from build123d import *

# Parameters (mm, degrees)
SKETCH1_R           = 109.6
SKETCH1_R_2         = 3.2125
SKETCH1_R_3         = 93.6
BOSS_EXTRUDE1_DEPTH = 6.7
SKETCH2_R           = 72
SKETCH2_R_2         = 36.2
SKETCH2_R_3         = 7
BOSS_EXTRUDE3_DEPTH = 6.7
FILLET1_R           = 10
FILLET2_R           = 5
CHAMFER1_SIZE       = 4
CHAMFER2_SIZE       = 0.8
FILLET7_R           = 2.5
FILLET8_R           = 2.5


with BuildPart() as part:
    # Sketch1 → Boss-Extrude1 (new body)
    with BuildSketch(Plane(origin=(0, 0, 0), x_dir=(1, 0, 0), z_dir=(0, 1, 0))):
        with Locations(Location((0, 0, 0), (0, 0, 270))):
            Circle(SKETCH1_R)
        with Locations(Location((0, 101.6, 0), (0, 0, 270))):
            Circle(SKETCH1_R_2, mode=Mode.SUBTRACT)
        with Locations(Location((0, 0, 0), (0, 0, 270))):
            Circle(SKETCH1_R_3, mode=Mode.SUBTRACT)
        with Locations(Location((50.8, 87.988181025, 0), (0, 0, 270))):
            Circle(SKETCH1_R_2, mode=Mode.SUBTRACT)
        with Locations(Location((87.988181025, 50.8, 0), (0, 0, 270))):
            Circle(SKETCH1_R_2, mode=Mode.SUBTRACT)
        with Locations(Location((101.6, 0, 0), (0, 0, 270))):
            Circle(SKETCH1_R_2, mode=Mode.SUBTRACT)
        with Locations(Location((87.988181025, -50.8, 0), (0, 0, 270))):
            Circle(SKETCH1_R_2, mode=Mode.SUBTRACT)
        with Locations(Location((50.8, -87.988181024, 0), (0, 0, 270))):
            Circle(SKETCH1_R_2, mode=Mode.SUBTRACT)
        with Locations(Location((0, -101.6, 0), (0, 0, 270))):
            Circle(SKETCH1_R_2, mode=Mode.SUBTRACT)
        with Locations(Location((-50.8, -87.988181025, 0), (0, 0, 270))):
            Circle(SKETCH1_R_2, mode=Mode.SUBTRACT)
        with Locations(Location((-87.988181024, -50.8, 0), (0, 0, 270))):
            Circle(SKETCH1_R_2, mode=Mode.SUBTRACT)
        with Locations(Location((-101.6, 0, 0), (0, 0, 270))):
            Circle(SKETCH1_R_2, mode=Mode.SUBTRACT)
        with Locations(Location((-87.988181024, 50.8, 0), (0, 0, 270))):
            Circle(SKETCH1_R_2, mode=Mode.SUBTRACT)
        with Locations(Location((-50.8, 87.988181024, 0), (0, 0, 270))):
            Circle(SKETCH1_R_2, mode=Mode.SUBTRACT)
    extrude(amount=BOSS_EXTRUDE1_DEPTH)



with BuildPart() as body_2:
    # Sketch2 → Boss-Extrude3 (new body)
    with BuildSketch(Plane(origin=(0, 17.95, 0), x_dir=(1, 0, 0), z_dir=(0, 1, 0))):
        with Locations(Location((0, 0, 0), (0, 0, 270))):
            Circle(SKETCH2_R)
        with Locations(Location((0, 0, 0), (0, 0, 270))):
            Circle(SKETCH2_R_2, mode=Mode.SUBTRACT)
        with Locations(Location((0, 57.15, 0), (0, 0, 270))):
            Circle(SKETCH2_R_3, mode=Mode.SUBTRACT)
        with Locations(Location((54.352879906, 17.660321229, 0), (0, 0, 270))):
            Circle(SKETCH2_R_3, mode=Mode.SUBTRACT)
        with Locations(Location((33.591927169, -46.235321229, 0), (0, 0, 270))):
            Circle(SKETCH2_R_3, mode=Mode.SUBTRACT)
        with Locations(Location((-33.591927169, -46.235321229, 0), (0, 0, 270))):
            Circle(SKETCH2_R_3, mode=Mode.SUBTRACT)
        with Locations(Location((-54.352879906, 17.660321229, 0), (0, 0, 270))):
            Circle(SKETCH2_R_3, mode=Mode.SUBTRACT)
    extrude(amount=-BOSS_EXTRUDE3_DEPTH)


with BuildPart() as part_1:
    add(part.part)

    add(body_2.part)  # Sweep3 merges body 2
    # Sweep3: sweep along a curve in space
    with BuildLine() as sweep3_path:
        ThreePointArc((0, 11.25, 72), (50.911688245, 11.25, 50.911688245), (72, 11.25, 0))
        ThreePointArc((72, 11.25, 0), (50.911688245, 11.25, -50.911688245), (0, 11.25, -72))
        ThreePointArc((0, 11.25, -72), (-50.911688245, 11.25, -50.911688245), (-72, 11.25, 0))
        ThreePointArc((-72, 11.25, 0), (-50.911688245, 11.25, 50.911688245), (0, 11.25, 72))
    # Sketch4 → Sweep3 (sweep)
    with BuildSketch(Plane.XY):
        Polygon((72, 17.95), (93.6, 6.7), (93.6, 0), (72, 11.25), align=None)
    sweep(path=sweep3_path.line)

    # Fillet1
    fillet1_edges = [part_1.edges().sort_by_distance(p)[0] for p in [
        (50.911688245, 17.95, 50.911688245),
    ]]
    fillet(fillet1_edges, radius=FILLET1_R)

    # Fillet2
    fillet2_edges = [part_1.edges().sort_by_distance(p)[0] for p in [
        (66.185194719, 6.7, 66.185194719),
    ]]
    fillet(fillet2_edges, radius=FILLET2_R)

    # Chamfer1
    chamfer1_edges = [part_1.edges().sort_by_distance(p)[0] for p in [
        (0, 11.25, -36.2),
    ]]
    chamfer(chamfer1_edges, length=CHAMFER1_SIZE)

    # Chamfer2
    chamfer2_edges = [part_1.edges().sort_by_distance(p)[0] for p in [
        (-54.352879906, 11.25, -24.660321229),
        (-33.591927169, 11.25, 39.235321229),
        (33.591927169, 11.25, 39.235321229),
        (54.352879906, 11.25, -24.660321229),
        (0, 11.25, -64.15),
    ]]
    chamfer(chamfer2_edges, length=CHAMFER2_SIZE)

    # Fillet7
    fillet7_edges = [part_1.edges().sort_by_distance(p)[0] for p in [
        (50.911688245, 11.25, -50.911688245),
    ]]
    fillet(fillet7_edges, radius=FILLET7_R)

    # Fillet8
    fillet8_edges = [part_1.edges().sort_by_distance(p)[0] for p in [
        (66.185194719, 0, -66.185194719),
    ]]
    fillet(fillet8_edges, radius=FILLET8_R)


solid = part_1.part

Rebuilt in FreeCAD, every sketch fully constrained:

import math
import FreeCAD as App
import Part
import Sketcher
Q = App.Units.Quantity


def edges_at(feature, points):
    """Names of the edges that pass closest to the given points."""
    edges = feature.Shape.Edges
    near = lambda p: min(range(len(edges)), key=lambda i: edges[i].distToShape(Part.Vertex(*p))[0])
    return sorted({f"Edge{near(p) + 1}" for p in points})

doc = App.newDocument("Part")
body = doc.addObject("PartDesign::Body", "Body")

sketch1 = body.newObject("Sketcher::SketchObject", "Sketch")
sketch1.AttachmentSupport = (doc.getObject("XZ_Plane"), [""])
sketch1.MapMode = "FlatFace"
sketch1.addGeometry([
    Part.Circle(App.Vector(0, 0, 0), App.Vector(0, 0, 1), 109.6),
    Part.Circle(App.Vector(-88, -50.8, 0), App.Vector(0, 0, 1), 3.2),
    Part.Circle(App.Vector(-50.8, -88, 0), App.Vector(0, 0, 1), 3.2),
    Part.Circle(App.Vector(0, -101.6, 0), App.Vector(0, 0, 1), 3.2),
    Part.Circle(App.Vector(0, 0, 0), App.Vector(0, 0, 1), 93.6),
    Part.Circle(App.Vector(-101.6, 0, 0), App.Vector(0, 0, 1), 3.2),
    Part.Circle(App.Vector(-88, 50.8, 0), App.Vector(0, 0, 1), 3.2),
    Part.Circle(App.Vector(-50.8, 88, 0), App.Vector(0, 0, 1), 3.2),
    Part.Circle(App.Vector(50.8, -88, 0), App.Vector(0, 0, 1), 3.2),
    Part.Circle(App.Vector(88, -50.8, 0), App.Vector(0, 0, 1), 3.2),
    Part.Circle(App.Vector(101.6, 0, 0), App.Vector(0, 0, 1), 3.2),
    Part.Circle(App.Vector(0, 101.6, 0), App.Vector(0, 0, 1), 3.2),
    Part.Circle(App.Vector(50.8, 88, 0), App.Vector(0, 0, 1), 3.2),
    Part.Circle(App.Vector(88, 50.8, 0), App.Vector(0, 0, 1), 3.2),
], False)
sketch1.addConstraint([
    Sketcher.Constraint("Coincident", 0, 3, -1, 1),
    Sketcher.Constraint("Coincident", 4, 3, -1, 1),
    Sketcher.Constraint("Equal", 1, 2),
    Sketcher.Constraint("Equal", 2, 3),
    Sketcher.Constraint("Equal", 3, 5),
    Sketcher.Constraint("Equal", 5, 6),
    Sketcher.Constraint("Equal", 6, 7),
    Sketcher.Constraint("Equal", 7, 8),
    Sketcher.Constraint("Equal", 8, 9),
    Sketcher.Constraint("Equal", 9, 10),
    Sketcher.Constraint("Equal", 10, 11),
    Sketcher.Constraint("Equal", 11, 12),
    Sketcher.Constraint("Equal", 12, 13),
    Sketcher.Constraint("Symmetric", 7, 3, 8, 3, -1, 1),
    Sketcher.Constraint("Symmetric", 6, 3, 9, 3, -1, 1),
    Sketcher.Constraint("Symmetric", 5, 3, 10, 3, -1, 1),
    Sketcher.Constraint("Symmetric", 3, 3, 11, 3, -1, 1),
    Sketcher.Constraint("Symmetric", 2, 3, 12, 3, -1, 1),
    Sketcher.Constraint("Symmetric", 1, 3, 13, 3, -1, 1),
    Sketcher.Constraint("Symmetric", 2, 3, 8, 3, -2),
    Sketcher.Constraint("Symmetric", 1, 3, 9, 3, -2),
    Sketcher.Constraint("PointOnObject", 3, 3, -2),
    Sketcher.Constraint("PointOnObject", 5, 3, -1),
    Sketcher.Constraint("Diameter", 0, Q("219.2 mm")),
    Sketcher.Constraint("Diameter", 4, Q("187.2 mm")),
    Sketcher.Constraint("Diameter", 1, Q("6.425 mm")),
    Sketcher.Constraint("DistanceY", 1, 3, -1, 1, Q("50.8 mm")),
    Sketcher.Constraint("DistanceX", 2, 3, -1, 1, Q("50.8 mm")),
    Sketcher.Constraint("DistanceY", 3, 3, -1, 1, Q("101.6 mm")),
    Sketcher.Constraint("DistanceX", 5, 3, -1, 1, Q("101.6 mm")),
    Sketcher.Constraint("DistanceX", 1, 3, -1, 1, Q("87.988181 mm")),
    Sketcher.Constraint("DistanceY", 2, 3, -1, 1, Q("87.988181 mm")),
])
pad1 = body.newObject("PartDesign::Pad", "Pad")
pad1.Profile = sketch1
pad1.Length = 6.7
pad1.Reversed = True
body2 = doc.addObject("PartDesign::Body", "Body001")

sketch2 = body2.newObject("Sketcher::SketchObject", "Sketch001")
sketch2.AttachmentSupport = (doc.getObject("XZ_Plane001"), [""])
sketch2.MapMode = "FlatFace"
sketch2.AttachmentOffset = App.Placement(App.Vector(0, 0, -17.95), App.Rotation())
sketch2.addGeometry([
    Part.Circle(App.Vector(0, 0, 0), App.Vector(0, 0, 1), 72),
    Part.Circle(App.Vector(-54, -18, 0), App.Vector(0, 0, 1), 7),
    Part.Circle(App.Vector(0, -57, 0), App.Vector(0, 0, 1), 7),
    Part.Circle(App.Vector(-34, 46, 0), App.Vector(0, 0, 1), 7),
    Part.Circle(App.Vector(54, -18, 0), App.Vector(0, 0, 1), 7),
    Part.Circle(App.Vector(0, 0, 0), App.Vector(0, 0, 1), 36),
    Part.Circle(App.Vector(34, 46, 0), App.Vector(0, 0, 1), 7),
], False)
sketch2.addConstraint([
    Sketcher.Constraint("Coincident", 0, 3, -1, 1),
    Sketcher.Constraint("Coincident", 5, 3, -1, 1),
    Sketcher.Constraint("Equal", 1, 2),
    Sketcher.Constraint("Equal", 2, 3),
    Sketcher.Constraint("Equal", 3, 4),
    Sketcher.Constraint("Equal", 4, 6),
    Sketcher.Constraint("Symmetric", 1, 3, 4, 3, -2),
    Sketcher.Constraint("Symmetric", 3, 3, 6, 3, -2),
    Sketcher.Constraint("PointOnObject", 2, 3, -2),
    Sketcher.Constraint("Diameter", 0, Q("144 mm")),
    Sketcher.Constraint("Diameter", 1, Q("14 mm")),
    Sketcher.Constraint("Diameter", 5, Q("72.4 mm")),
    Sketcher.Constraint("DistanceY", 2, 3, -1, 1, Q("57.15 mm")),
    Sketcher.Constraint("DistanceX", 1, 3, -1, 1, Q("54.35288 mm")),
    Sketcher.Constraint("DistanceY", 1, 3, -1, 1, Q("17.660321 mm")),
    Sketcher.Constraint("DistanceY", -1, 1, 3, 3, Q("46.235321 mm")),
    Sketcher.Constraint("DistanceX", 3, 3, -1, 1, Q("33.591927 mm")),
])
pad2 = body2.newObject("PartDesign::Pad", "Pad001")
pad2.Profile = sketch2
pad2.Length = 6.7
body.AllowCompound = True
doc.recompute()

boolean = body.newObject("PartDesign::Boolean", "Boolean")
boolean.Type = "Fuse"
boolean.addObjects([body2])

sketch3 = body.newObject("Sketcher::SketchObject", "Sketch002")
sketch3.AttachmentSupport = (doc.getObject("XY_Plane"), [""])
sketch3.MapMode = "FlatFace"
sketch3.addGeometry([
    Part.LineSegment(App.Vector(94, 7, 0), App.Vector(72, 18, 0)),
    Part.LineSegment(App.Vector(72, 18, 0), App.Vector(72, 11, 0)),
    Part.LineSegment(App.Vector(72, 11, 0), App.Vector(94, 0, 0)),
    Part.LineSegment(App.Vector(94, 0, 0), App.Vector(94, 7, 0)),
], False)
sketch3.addConstraint([
    Sketcher.Constraint("Coincident", 0, 2, 1, 1),
    Sketcher.Constraint("Coincident", 1, 2, 2, 1),
    Sketcher.Constraint("Coincident", 2, 2, 3, 1),
    Sketcher.Constraint("Coincident", 3, 2, 0, 1),
    Sketcher.Constraint("Vertical", 1),
    Sketcher.Constraint("Vertical", 3),
    Sketcher.Constraint("PointOnObject", 2, 2, -1),
    Sketcher.Constraint("Parallel", 0, 2),
    Sketcher.Constraint("DistanceY", 1, 2, 1, 1, Q("6.7 mm")),
    Sketcher.Constraint("DistanceX", -1, 1, 0, 2, Q("72 mm")),
    Sketcher.Constraint("DistanceX", -1, 1, 2, 2, Q("93.6 mm")),
    Sketcher.Constraint("DistanceY", -1, 1, 0, 2, Q("17.95 mm")),
])

sketch4 = body.newObject("Sketcher::SketchObject", "Sketch003")
sketch4.AttachmentSupport = (doc.getObject("XZ_Plane"), [""])
sketch4.MapMode = "FlatFace"
sketch4.AttachmentOffset = App.Placement(App.Vector(0, 0, -11.25), App.Rotation())
sketch4.addGeometry([
    Part.ArcOfCircle(Part.Circle(App.Vector(0, 0, 0), App.Vector(0, 0, 1), 72), math.radians(0), math.radians(90)),
    Part.ArcOfCircle(Part.Circle(App.Vector(0, 0, 0), App.Vector(0, 0, 1), 72), math.radians(-90), math.radians(0)),
    Part.ArcOfCircle(Part.Circle(App.Vector(0, 0, 0), App.Vector(0, 0, 1), 72), math.radians(-180), math.radians(-90)),
    Part.ArcOfCircle(Part.Circle(App.Vector(0, 0, 0), App.Vector(0, 0, 1), 72), math.radians(90), math.radians(180)),
], False)
sketch4.addConstraint([
    Sketcher.Constraint("Tangent", 0, 1, 1, 2),
    Sketcher.Constraint("Tangent", 1, 1, 2, 2),
    Sketcher.Constraint("Tangent", 2, 1, 3, 2),
    Sketcher.Constraint("Tangent", 3, 1, 0, 2),
    Sketcher.Constraint("Coincident", 0, 3, -1, 1),
    Sketcher.Constraint("Equal", 0, 1),
    Sketcher.Constraint("PointOnObject", 0, 1, -1),
    Sketcher.Constraint("PointOnObject", 1, 1, -2),
    Sketcher.Constraint("PointOnObject", 2, 1, -1),
    Sketcher.Constraint("PointOnObject", 3, 1, -2),
    Sketcher.Constraint("Radius", 0, Q("72 mm")),
])
doc.recompute()

additivepipe = body.newObject("PartDesign::AdditivePipe", "AdditivePipe")
additivepipe.Profile = sketch3
additivepipe.Spine = (sketch4, ["Edge1", "Edge2", "Edge3", "Edge4"])
doc.recompute()

fillet = body.newObject("PartDesign::Fillet", "Fillet")
fillet.Base = (additivepipe, edges_at(additivepipe, [(50.912, 17.95, 50.912)]))
fillet.Radius = 10
doc.recompute()

fillet2 = body.newObject("PartDesign::Fillet", "Fillet001")
fillet2.Base = (fillet, edges_at(fillet, [(66.185, 6.7, 66.185)]))
fillet2.Radius = 5
doc.recompute()

chamfer = body.newObject("PartDesign::Chamfer", "Chamfer")
chamfer.Base = (fillet2, edges_at(fillet2, [(0, 11.25, -36.2)]))
chamfer.Size = 4
doc.recompute()

chamfer2 = body.newObject("PartDesign::Chamfer", "Chamfer001")
chamfer2.Base = (chamfer, edges_at(chamfer, [
    (-54.353, 11.25, -24.66),
    (-33.592, 11.25, 39.235),
    (33.592, 11.25, 39.235),
    (54.353, 11.25, -24.66),
    (0, 11.25, -64.15),
]))
chamfer2.Size = 0.8
doc.recompute()

fillet3 = body.newObject("PartDesign::Fillet", "Fillet002")
fillet3.Base = (chamfer2, edges_at(chamfer2, [(50.912, 11.25, -50.912)]))
fillet3.Radius = 2.5
doc.recompute()

fillet4 = body.newObject("PartDesign::Fillet", "Fillet003")
fillet4.Base = (fillet3, edges_at(fillet3, [(66.185, 0, -66.185)]))
fillet4.Radius = 2.5

doc.recompute()
